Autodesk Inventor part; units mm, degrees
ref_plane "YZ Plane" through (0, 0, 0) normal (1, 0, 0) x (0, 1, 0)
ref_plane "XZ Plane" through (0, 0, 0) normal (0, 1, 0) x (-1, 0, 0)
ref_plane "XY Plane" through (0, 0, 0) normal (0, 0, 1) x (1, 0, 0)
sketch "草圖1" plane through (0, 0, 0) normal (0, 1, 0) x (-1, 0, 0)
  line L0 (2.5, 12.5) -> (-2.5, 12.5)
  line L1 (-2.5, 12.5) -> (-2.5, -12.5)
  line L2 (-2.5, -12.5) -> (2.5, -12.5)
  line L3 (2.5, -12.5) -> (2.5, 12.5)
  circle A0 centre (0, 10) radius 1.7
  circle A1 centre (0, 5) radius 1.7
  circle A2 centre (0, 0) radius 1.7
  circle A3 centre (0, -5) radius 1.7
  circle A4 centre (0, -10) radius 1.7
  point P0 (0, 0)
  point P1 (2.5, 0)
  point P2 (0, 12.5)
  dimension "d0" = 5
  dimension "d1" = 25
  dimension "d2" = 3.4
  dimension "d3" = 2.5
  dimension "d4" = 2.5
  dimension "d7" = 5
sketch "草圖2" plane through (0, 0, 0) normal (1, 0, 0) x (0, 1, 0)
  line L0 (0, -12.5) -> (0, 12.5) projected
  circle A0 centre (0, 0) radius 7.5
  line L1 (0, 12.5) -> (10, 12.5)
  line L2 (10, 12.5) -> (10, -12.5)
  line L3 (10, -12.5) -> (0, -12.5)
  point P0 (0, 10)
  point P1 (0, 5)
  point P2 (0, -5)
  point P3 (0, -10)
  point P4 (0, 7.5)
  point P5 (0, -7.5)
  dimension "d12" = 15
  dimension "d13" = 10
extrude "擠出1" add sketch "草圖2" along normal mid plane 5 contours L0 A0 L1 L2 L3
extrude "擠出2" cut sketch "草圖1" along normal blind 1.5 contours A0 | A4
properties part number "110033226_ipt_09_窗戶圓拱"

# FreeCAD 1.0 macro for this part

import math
import FreeCAD as App
import Part
import Sketcher
from FreeCAD import Vector
Q = App.Units.Quantity

doc = App.newDocument("Part")
body = doc.addObject("PartDesign::Body", "Body")

# Sketch on YZ plane
sketch1 = doc.addObject("Sketcher::SketchObject", "Sketch")
body.addObject(sketch1)
sketch1.AttachmentSupport = (doc.YZ_Plane, [""])
sketch1.MapMode = "FlatFace"
sketch1.addGeometry(Part.LineSegment(Vector(0, -8, 0), Vector(0, -12, 0)), False)
sketch1.addGeometry(Part.LineSegment(Vector(0, -12, 0), Vector(10, -12, 0)), False)
sketch1.addGeometry(Part.LineSegment(Vector(10, -12, 0), Vector(10, 12, 0)), False)
sketch1.addGeometry(Part.LineSegment(Vector(10, 12, 0), Vector(0, 12, 0)), False)
sketch1.addGeometry(Part.LineSegment(Vector(0, 12, 0), Vector(0, 8, 0)), False)
sketch1.addGeometry(Part.ArcOfCircle(Part.Circle(Vector(0, 0, 0), Vector(0, 0, 1), 8), math.radians(-90), math.radians(90)), False)
sketch1.addConstraint(Sketcher.Constraint("Coincident", 0, 2, 1, 1))
sketch1.addConstraint(Sketcher.Constraint("Coincident", 1, 2, 2, 1))
sketch1.addConstraint(Sketcher.Constraint("Coincident", 2, 2, 3, 1))
sketch1.addConstraint(Sketcher.Constraint("Coincident", 3, 2, 4, 1))
sketch1.addConstraint(Sketcher.Constraint("Coincident", 4, 2, 5, 2))
sketch1.addConstraint(Sketcher.Constraint("Coincident", 5, 1, 0, 1))
sketch1.addConstraint(Sketcher.Constraint("Vertical", 0))
sketch1.addConstraint(Sketcher.Constraint("Horizontal", 1))
sketch1.addConstraint(Sketcher.Constraint("Vertical", 2))
sketch1.addConstraint(Sketcher.Constraint("Horizontal", 3))
sketch1.addConstraint(Sketcher.Constraint("Vertical", 4))
sketch1.addConstraint(Sketcher.Constraint("Coincident", 5, 3, -1, 1))
sketch1.addConstraint(Sketcher.Constraint("Symmetric", 0, 2, 3, 2, -1, 1))
sketch1.addConstraint(Sketcher.Constraint("PointOnObject", 0, 2, -2))
sketch1.addConstraint(Sketcher.Constraint("Radius", 5, Q("7.5 mm")))
sketch1.addConstraint(Sketcher.Constraint("DistanceX", 1, 1, 1, 2, Q("10 mm")))
sketch1.addConstraint(Sketcher.Constraint("DistanceY", 0, 2, 0, 1, Q("5 mm")))
pad1 = doc.addObject("PartDesign::Pad", "Pad")
body.addObject(pad1)
pad1.Profile = sketch1
pad1.Length = 5
pad1.Midplane = True

# Sketch on XZ plane
sketch2 = doc.addObject("Sketcher::SketchObject", "Sketch001")
body.addObject(sketch2)
sketch2.AttachmentSupport = (doc.XZ_Plane, [""])
sketch2.MapMode = "FlatFace"
sketch2.addGeometry(Part.Circle(Vector(0, 10, 0), Vector(0, 0, 1), 1.7), False)
sketch2.addGeometry(Part.Circle(Vector(0, -10, 0), Vector(0, 0, 1), 1.7), False)
sketch2.addConstraint(Sketcher.Constraint("Equal", 0, 1))
sketch2.addConstraint(Sketcher.Constraint("Symmetric", 0, 3, 1, 3, -1, 1))
sketch2.addConstraint(Sketcher.Constraint("PointOnObject", 0, 3, -2))
sketch2.addConstraint(Sketcher.Constraint("Diameter", 0, Q("3.4 mm")))
sketch2.addConstraint(Sketcher.Constraint("DistanceY", -1, 1, 0, 3, Q("10 mm")))
pocket1 = doc.addObject("PartDesign::Pocket", "Pocket")
body.addObject(pocket1)
pocket1.Profile = sketch2
pocket1.Length = 1.5

doc.recompute()
